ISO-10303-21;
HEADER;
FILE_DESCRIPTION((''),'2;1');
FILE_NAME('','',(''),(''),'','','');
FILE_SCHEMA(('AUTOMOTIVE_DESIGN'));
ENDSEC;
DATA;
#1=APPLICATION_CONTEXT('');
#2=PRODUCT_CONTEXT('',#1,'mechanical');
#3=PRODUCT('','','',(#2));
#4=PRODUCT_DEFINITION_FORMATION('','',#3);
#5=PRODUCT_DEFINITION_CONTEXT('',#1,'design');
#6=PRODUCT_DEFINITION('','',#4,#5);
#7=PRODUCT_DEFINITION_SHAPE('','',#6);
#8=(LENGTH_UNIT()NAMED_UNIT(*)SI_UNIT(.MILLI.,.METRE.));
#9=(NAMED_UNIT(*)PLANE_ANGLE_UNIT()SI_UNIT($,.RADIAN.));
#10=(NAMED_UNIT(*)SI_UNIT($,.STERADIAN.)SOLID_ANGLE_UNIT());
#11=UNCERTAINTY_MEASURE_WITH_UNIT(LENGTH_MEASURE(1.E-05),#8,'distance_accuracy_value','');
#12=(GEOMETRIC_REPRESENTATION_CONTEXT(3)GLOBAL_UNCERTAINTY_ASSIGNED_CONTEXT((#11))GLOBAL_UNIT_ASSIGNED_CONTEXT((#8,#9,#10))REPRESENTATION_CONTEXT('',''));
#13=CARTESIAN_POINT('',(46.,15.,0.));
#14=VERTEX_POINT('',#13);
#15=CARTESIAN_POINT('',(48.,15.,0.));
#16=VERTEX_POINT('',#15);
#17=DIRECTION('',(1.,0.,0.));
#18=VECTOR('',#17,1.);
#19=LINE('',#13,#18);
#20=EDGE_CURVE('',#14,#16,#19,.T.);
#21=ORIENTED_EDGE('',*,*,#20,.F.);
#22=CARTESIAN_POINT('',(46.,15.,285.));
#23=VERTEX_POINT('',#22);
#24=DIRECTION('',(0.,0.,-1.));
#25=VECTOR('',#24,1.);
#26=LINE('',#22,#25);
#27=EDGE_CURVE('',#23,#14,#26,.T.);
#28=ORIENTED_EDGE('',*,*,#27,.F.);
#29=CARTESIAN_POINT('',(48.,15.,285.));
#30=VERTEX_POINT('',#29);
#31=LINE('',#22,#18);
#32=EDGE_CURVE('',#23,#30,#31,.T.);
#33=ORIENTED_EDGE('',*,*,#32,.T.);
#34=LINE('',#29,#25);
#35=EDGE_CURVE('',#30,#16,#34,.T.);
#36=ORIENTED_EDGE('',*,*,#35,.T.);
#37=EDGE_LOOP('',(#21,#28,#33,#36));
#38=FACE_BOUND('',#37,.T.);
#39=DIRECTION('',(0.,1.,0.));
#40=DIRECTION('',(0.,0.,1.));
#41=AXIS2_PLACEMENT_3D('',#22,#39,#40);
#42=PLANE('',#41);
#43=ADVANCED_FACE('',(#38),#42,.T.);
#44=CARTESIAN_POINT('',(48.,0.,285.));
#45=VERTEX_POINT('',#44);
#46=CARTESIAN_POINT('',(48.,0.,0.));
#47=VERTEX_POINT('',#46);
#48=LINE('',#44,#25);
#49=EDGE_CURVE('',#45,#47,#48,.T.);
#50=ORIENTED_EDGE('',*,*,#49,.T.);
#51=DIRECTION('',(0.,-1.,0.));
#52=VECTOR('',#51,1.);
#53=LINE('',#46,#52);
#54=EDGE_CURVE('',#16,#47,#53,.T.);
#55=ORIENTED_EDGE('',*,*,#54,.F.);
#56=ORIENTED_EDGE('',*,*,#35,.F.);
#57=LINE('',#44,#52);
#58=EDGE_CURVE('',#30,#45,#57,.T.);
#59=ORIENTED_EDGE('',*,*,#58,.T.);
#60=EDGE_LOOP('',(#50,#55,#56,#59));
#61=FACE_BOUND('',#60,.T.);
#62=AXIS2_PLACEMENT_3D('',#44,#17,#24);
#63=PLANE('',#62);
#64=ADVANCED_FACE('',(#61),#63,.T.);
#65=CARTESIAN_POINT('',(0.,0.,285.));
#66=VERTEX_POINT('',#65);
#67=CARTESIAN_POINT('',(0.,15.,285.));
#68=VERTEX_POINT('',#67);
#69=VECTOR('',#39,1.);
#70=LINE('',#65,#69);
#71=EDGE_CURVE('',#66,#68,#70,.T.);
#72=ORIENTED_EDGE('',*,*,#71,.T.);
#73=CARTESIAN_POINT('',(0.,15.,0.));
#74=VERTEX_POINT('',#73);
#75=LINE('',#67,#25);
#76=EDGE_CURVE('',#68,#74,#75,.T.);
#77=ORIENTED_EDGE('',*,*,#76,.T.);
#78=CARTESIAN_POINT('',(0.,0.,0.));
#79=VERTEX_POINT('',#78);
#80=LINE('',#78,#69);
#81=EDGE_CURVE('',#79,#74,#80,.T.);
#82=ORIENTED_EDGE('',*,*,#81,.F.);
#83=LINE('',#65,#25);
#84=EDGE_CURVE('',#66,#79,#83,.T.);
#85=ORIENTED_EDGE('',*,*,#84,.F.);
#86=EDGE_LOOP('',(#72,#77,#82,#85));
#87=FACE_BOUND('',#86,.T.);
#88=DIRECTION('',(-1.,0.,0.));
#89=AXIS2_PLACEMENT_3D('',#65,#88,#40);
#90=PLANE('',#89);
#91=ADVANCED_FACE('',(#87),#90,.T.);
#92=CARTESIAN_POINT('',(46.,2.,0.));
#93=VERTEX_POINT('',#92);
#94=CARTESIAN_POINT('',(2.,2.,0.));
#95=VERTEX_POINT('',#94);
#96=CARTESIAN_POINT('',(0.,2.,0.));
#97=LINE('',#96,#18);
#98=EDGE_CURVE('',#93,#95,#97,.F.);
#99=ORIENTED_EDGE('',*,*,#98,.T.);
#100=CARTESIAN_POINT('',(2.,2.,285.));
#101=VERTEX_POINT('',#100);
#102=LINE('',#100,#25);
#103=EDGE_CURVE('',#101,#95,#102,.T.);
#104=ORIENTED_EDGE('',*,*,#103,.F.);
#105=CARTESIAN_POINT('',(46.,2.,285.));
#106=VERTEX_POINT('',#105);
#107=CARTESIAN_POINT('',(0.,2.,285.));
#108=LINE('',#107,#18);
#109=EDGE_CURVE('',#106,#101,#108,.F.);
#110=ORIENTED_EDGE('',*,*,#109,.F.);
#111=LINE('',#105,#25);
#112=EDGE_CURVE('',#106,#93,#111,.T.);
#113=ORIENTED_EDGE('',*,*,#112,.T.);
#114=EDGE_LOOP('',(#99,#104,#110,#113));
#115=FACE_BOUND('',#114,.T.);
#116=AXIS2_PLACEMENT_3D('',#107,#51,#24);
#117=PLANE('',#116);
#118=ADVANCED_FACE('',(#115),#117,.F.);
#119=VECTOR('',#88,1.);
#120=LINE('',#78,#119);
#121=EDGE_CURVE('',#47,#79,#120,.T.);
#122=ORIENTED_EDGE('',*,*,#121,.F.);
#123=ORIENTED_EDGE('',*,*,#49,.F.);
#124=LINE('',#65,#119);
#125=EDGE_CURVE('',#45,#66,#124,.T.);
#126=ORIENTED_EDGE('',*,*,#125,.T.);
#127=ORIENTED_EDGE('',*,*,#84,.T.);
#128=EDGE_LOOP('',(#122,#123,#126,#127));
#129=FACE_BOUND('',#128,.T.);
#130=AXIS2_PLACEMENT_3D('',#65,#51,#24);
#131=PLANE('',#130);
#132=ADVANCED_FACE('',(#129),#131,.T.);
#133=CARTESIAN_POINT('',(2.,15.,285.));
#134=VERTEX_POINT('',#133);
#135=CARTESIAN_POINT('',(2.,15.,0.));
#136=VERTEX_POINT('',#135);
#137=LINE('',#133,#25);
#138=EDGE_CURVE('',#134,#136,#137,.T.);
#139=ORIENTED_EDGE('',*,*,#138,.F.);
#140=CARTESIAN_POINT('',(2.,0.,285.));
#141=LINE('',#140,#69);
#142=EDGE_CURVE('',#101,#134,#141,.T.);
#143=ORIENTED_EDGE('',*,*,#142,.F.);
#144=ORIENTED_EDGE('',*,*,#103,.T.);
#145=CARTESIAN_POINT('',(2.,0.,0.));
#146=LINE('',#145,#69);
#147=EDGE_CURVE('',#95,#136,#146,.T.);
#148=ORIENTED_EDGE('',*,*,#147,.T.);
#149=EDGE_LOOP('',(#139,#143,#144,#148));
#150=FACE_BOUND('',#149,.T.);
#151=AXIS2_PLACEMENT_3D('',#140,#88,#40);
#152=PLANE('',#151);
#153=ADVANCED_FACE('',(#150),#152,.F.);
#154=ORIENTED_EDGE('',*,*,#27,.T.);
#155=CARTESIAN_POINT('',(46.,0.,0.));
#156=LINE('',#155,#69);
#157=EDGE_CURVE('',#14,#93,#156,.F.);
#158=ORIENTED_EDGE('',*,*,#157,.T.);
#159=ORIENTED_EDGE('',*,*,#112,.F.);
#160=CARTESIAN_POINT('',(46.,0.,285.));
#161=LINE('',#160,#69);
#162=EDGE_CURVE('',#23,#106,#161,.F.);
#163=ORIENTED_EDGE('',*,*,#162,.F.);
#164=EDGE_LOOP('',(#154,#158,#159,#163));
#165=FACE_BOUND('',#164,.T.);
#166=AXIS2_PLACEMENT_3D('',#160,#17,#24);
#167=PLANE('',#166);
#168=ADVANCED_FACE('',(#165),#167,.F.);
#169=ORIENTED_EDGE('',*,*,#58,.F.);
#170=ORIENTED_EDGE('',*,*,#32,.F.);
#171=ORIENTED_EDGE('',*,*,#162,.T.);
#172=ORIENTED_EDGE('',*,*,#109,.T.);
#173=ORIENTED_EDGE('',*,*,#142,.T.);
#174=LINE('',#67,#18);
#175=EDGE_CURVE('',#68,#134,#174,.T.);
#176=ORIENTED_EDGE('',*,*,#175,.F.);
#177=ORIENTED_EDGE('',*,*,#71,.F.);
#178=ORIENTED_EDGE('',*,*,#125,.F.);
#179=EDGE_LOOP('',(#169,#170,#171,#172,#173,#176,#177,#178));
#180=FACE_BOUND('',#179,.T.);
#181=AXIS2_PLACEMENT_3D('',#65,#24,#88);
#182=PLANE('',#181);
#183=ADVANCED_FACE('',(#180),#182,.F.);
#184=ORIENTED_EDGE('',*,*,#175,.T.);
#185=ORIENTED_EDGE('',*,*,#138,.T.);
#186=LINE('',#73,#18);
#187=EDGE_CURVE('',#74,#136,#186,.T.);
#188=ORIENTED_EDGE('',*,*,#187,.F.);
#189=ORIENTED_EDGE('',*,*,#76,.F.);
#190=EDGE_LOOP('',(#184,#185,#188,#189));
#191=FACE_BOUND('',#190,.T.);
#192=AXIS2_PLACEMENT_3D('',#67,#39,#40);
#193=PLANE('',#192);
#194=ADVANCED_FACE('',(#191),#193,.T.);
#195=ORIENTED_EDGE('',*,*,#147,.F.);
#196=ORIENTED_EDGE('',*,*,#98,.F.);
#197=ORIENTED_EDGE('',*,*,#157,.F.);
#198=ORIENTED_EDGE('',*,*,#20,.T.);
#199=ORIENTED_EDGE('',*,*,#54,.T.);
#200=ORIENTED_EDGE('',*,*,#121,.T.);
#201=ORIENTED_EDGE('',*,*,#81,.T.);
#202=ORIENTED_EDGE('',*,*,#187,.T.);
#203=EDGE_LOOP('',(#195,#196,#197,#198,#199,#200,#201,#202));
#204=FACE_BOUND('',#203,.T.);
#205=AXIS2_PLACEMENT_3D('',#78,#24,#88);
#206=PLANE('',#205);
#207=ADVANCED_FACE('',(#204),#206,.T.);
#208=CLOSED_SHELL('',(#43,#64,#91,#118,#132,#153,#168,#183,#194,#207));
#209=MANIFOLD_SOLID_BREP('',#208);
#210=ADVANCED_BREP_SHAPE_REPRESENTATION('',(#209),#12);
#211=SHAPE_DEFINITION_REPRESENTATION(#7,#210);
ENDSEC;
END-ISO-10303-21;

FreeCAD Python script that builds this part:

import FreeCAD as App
import Part
import Sketcher
from FreeCAD import Vector
Q = App.Units.Quantity

doc = App.newDocument("Part")
body = doc.addObject("PartDesign::Body", "Body")

# Sketch on XY plane
sketch1 = body.newObject("Sketcher::SketchObject", "Sketch")
sketch1.AttachmentSupport = (doc.getObject("XY_Plane"), [""])
sketch1.MapMode = "FlatFace"
sketch1.addGeometry([
    Part.LineSegment(Vector(0, 15, 0), Vector(0, 0, 0)),  # 0
    Part.LineSegment(Vector(0, 0, 0), Vector(48, 0, 0)),  # 1
    Part.LineSegment(Vector(48, 0, 0), Vector(48, 15, 0)),  # 2
    Part.LineSegment(Vector(48, 15, 0), Vector(46, 15, 0)),  # 3
    Part.LineSegment(Vector(46, 15, 0), Vector(46, 2, 0)),  # 4
    Part.LineSegment(Vector(46, 2, 0), Vector(2, 2, 0)),  # 5
    Part.LineSegment(Vector(2, 2, 0), Vector(2, 15, 0)),  # 6
    Part.LineSegment(Vector(2, 15, 0), Vector(0, 15, 0)),  # 7
], False)
sketch1.addConstraint([
    Sketcher.Constraint("Coincident", 0, 2, 1, 1),
    Sketcher.Constraint("Coincident", 1, 2, 2, 1),
    Sketcher.Constraint("Coincident", 2, 2, 3, 1),
    Sketcher.Constraint("Coincident", 3, 2, 4, 1),
    Sketcher.Constraint("Coincident", 4, 2, 5, 1),
    Sketcher.Constraint("Coincident", 5, 2, 6, 1),
    Sketcher.Constraint("Coincident", 6, 2, 7, 1),
    Sketcher.Constraint("Coincident", 7, 2, 0, 1),
    Sketcher.Constraint("Vertical", 0),
    Sketcher.Constraint("Horizontal", 1),
    Sketcher.Constraint("Vertical", 2),
    Sketcher.Constraint("Horizontal", 3),
    Sketcher.Constraint("Vertical", 4),
    Sketcher.Constraint("Horizontal", 5),
    Sketcher.Constraint("Vertical", 6),
    Sketcher.Constraint("Horizontal", 7),
    Sketcher.Constraint("Coincident", 0, 2, -1, 1),
    Sketcher.Constraint("Horizontal", 3, 2, 6, 2),
    Sketcher.Constraint("Equal", 3, 7),
    Sketcher.Constraint("DistanceX", 1, 1, 1, 2, Q("48 mm")),
    Sketcher.Constraint("DistanceX", 3, 2, 3, 1, Q("2 mm")),
    Sketcher.Constraint("DistanceY", 0, 2, 0, 1, Q("15 mm")),
    Sketcher.Constraint("DistanceY", 4, 2, 4, 1, Q("13 mm")),
])
pad1 = body.newObject("PartDesign::Pad", "Pad")
pad1.Profile = sketch1
pad1.Length = 285

doc.recompute()
